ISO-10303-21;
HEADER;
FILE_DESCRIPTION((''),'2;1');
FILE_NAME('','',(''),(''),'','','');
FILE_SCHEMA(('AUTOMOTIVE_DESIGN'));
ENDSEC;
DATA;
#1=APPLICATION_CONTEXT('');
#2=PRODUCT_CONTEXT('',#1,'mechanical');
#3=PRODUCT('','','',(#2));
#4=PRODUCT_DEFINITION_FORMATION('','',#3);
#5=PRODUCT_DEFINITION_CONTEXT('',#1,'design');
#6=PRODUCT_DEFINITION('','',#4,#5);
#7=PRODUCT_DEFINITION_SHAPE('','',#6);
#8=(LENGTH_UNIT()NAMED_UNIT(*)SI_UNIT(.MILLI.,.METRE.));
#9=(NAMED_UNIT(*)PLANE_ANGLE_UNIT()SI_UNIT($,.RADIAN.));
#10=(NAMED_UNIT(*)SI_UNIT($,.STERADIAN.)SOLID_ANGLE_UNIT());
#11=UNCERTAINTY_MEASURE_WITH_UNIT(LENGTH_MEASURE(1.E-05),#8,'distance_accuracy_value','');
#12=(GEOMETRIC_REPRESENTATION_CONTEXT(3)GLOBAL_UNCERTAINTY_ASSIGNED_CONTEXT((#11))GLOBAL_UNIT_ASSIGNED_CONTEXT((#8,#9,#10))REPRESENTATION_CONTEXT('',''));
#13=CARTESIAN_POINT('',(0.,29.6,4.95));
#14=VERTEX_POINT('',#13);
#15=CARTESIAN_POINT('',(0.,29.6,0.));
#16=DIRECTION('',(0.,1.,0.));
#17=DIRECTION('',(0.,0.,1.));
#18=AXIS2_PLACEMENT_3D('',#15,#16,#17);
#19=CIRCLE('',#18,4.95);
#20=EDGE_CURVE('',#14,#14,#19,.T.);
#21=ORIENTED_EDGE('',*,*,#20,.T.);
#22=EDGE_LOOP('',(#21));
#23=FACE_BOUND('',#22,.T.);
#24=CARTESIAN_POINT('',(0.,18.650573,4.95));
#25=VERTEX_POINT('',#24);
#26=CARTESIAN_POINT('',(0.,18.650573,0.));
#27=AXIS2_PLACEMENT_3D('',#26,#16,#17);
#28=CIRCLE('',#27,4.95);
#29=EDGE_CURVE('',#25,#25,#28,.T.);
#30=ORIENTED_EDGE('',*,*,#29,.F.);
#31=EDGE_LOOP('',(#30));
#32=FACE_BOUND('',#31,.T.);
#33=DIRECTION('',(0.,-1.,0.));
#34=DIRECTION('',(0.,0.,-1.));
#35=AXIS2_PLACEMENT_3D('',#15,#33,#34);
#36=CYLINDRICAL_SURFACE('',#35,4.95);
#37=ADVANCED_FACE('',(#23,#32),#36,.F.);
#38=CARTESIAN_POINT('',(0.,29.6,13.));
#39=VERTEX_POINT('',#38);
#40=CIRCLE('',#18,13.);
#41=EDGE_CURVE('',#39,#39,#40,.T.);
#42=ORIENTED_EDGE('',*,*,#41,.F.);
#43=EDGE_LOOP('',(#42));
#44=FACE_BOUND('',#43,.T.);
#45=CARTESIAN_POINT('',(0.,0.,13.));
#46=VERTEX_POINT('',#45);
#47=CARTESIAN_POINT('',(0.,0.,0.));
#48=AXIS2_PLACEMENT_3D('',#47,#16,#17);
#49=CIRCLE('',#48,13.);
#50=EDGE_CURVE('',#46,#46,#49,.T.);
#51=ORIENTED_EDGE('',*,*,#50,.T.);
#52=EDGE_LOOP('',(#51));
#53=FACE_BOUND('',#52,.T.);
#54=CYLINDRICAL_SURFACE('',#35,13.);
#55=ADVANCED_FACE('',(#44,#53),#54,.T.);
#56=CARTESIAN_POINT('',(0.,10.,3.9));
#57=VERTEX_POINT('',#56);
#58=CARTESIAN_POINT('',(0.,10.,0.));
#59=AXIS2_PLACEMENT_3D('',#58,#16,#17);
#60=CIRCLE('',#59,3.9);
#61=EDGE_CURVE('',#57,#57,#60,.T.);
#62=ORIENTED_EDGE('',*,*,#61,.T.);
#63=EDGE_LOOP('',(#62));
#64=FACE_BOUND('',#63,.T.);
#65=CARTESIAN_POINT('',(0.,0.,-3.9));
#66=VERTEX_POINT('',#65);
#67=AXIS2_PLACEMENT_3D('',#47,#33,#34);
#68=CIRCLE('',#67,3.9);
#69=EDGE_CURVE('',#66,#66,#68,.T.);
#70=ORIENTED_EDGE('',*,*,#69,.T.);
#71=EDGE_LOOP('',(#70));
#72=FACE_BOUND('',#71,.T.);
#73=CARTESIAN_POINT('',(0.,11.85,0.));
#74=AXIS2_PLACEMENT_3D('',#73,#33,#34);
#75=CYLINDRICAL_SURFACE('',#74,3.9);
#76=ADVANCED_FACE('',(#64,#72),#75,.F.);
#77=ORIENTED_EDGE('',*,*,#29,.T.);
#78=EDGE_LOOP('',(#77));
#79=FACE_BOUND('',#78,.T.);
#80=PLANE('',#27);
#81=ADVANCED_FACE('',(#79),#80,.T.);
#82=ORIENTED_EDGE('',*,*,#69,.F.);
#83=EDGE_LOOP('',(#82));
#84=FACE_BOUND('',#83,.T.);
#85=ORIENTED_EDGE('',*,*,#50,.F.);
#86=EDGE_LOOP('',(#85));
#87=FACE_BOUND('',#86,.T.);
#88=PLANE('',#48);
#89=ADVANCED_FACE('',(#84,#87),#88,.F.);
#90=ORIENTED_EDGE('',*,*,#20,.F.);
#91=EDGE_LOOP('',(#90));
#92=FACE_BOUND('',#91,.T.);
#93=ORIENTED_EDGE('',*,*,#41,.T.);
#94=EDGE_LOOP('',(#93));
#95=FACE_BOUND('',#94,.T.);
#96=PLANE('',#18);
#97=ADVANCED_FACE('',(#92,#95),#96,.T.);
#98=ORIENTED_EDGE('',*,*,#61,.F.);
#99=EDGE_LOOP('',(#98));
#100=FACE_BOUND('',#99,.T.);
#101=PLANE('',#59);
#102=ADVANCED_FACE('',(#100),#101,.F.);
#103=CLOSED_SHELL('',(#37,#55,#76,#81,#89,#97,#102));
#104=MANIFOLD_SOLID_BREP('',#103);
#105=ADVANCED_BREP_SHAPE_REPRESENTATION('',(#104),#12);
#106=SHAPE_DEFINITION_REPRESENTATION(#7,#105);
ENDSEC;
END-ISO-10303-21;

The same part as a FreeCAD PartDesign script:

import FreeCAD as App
import Part
import Sketcher

doc = App.newDocument("Part")
params = doc.addObject("Spreadsheet::Sheet", "Params")
for row, (alias, value) in enumerate([
    ("sketch1_diameter", "26 mm"),
    ("sketch1_diameter2", "9.9 mm"),
    ("pad1_length", "29.6 mm"),
    ("sketch2_diameter", "9.9 mm"),
    ("pad2_length", "8.650573 mm"),
    ("sketch3_diameter", "9.9 mm"),
    ("sketch3_diameter2", "7.8 mm"),
    ("pad3_length", "11.85 mm"),
], start=1):
    params.set(f"A{row}", alias)
    params.set(f"B{row}", "=" + value)
    params.setAlias(f"B{row}", alias)

body = doc.addObject("PartDesign::Body", "Body")

# Sketch on XZ plane
sketch1 = body.newObject("Sketcher::SketchObject", "Sketch")
sketch1.AttachmentSupport = (doc.getObject("XZ_Plane"), [""])
sketch1.MapMode = "FlatFace"
sketch1.addGeometry(Part.Circle(App.Vector(0, 0, 0), App.Vector(0, 0, 1), 13), False)
sketch1.addGeometry(Part.Circle(App.Vector(0, 0, 0), App.Vector(0, 0, 1), 5), False)
sketch1.addConstraint(Sketcher.Constraint("Coincident", 0, 3, -1, 1))
sketch1.addConstraint(Sketcher.Constraint("Coincident", 1, 3, -1, 1))
sketch1.addConstraint(Sketcher.Constraint("Diameter", 0, 26.0))
sketch1.addConstraint(Sketcher.Constraint("Diameter", 1, 9.9))
sketch1.setExpression("Constraints[2]", "Params.sketch1_diameter")
sketch1.setExpression("Constraints[3]", "Params.sketch1_diameter2")
pad1 = body.newObject("PartDesign::Pad", "Pad")
pad1.Profile = sketch1
pad1.setExpression("Length", "Params.pad1_length")
pad1.Reversed = True

# Sketch on XZ plane
sketch2 = body.newObject("Sketcher::SketchObject", "Sketch001")
sketch2.AttachmentSupport = (doc.getObject("XZ_Plane"), [""])
sketch2.MapMode = "FlatFace"
sketch2.AttachmentOffset = App.Placement(App.Vector(0, 0, -18.650573), App.Rotation())
sketch2.addGeometry(Part.Circle(App.Vector(0, 0, 0), App.Vector(0, 0, 1), 5), False)
sketch2.addConstraint(Sketcher.Constraint("Coincident", 0, 3, -1, 1))
sketch2.addConstraint(Sketcher.Constraint("Diameter", 0, 9.9))
sketch2.setExpression("Constraints[1]", "Params.sketch2_diameter")
pad2 = body.newObject("PartDesign::Pad", "Pad001")
pad2.Profile = sketch2
pad2.setExpression("Length", "Params.pad2_length")

# Sketch on XZ plane
sketch3 = body.newObject("Sketcher::SketchObject", "Sketch002")
sketch3.AttachmentSupport = (doc.getObject("XZ_Plane"), [""])
sketch3.MapMode = "FlatFace"
sketch3.addGeometry(Part.Circle(App.Vector(0, 0, 0), App.Vector(0, 0, 1), 5), False)
sketch3.addGeometry(Part.Circle(App.Vector(0, 0, 0), App.Vector(0, 0, 1), 3.9), False)
sketch3.addConstraint(Sketcher.Constraint("Coincident", 0, 3, -1, 1))
sketch3.addConstraint(Sketcher.Constraint("Coincident", 1, 3, -1, 1))
sketch3.addConstraint(Sketcher.Constraint("Diameter", 0, 9.9))
sketch3.addConstraint(Sketcher.Constraint("Diameter", 1, 7.8))
sketch3.setExpression("Constraints[2]", "Params.sketch3_diameter")
sketch3.setExpression("Constraints[3]", "Params.sketch3_diameter2")
pad3 = body.newObject("PartDesign::Pad", "Pad002")
pad3.Profile = sketch3
pad3.setExpression("Length", "Params.pad3_length")
pad3.Reversed = True

doc.recompute()
